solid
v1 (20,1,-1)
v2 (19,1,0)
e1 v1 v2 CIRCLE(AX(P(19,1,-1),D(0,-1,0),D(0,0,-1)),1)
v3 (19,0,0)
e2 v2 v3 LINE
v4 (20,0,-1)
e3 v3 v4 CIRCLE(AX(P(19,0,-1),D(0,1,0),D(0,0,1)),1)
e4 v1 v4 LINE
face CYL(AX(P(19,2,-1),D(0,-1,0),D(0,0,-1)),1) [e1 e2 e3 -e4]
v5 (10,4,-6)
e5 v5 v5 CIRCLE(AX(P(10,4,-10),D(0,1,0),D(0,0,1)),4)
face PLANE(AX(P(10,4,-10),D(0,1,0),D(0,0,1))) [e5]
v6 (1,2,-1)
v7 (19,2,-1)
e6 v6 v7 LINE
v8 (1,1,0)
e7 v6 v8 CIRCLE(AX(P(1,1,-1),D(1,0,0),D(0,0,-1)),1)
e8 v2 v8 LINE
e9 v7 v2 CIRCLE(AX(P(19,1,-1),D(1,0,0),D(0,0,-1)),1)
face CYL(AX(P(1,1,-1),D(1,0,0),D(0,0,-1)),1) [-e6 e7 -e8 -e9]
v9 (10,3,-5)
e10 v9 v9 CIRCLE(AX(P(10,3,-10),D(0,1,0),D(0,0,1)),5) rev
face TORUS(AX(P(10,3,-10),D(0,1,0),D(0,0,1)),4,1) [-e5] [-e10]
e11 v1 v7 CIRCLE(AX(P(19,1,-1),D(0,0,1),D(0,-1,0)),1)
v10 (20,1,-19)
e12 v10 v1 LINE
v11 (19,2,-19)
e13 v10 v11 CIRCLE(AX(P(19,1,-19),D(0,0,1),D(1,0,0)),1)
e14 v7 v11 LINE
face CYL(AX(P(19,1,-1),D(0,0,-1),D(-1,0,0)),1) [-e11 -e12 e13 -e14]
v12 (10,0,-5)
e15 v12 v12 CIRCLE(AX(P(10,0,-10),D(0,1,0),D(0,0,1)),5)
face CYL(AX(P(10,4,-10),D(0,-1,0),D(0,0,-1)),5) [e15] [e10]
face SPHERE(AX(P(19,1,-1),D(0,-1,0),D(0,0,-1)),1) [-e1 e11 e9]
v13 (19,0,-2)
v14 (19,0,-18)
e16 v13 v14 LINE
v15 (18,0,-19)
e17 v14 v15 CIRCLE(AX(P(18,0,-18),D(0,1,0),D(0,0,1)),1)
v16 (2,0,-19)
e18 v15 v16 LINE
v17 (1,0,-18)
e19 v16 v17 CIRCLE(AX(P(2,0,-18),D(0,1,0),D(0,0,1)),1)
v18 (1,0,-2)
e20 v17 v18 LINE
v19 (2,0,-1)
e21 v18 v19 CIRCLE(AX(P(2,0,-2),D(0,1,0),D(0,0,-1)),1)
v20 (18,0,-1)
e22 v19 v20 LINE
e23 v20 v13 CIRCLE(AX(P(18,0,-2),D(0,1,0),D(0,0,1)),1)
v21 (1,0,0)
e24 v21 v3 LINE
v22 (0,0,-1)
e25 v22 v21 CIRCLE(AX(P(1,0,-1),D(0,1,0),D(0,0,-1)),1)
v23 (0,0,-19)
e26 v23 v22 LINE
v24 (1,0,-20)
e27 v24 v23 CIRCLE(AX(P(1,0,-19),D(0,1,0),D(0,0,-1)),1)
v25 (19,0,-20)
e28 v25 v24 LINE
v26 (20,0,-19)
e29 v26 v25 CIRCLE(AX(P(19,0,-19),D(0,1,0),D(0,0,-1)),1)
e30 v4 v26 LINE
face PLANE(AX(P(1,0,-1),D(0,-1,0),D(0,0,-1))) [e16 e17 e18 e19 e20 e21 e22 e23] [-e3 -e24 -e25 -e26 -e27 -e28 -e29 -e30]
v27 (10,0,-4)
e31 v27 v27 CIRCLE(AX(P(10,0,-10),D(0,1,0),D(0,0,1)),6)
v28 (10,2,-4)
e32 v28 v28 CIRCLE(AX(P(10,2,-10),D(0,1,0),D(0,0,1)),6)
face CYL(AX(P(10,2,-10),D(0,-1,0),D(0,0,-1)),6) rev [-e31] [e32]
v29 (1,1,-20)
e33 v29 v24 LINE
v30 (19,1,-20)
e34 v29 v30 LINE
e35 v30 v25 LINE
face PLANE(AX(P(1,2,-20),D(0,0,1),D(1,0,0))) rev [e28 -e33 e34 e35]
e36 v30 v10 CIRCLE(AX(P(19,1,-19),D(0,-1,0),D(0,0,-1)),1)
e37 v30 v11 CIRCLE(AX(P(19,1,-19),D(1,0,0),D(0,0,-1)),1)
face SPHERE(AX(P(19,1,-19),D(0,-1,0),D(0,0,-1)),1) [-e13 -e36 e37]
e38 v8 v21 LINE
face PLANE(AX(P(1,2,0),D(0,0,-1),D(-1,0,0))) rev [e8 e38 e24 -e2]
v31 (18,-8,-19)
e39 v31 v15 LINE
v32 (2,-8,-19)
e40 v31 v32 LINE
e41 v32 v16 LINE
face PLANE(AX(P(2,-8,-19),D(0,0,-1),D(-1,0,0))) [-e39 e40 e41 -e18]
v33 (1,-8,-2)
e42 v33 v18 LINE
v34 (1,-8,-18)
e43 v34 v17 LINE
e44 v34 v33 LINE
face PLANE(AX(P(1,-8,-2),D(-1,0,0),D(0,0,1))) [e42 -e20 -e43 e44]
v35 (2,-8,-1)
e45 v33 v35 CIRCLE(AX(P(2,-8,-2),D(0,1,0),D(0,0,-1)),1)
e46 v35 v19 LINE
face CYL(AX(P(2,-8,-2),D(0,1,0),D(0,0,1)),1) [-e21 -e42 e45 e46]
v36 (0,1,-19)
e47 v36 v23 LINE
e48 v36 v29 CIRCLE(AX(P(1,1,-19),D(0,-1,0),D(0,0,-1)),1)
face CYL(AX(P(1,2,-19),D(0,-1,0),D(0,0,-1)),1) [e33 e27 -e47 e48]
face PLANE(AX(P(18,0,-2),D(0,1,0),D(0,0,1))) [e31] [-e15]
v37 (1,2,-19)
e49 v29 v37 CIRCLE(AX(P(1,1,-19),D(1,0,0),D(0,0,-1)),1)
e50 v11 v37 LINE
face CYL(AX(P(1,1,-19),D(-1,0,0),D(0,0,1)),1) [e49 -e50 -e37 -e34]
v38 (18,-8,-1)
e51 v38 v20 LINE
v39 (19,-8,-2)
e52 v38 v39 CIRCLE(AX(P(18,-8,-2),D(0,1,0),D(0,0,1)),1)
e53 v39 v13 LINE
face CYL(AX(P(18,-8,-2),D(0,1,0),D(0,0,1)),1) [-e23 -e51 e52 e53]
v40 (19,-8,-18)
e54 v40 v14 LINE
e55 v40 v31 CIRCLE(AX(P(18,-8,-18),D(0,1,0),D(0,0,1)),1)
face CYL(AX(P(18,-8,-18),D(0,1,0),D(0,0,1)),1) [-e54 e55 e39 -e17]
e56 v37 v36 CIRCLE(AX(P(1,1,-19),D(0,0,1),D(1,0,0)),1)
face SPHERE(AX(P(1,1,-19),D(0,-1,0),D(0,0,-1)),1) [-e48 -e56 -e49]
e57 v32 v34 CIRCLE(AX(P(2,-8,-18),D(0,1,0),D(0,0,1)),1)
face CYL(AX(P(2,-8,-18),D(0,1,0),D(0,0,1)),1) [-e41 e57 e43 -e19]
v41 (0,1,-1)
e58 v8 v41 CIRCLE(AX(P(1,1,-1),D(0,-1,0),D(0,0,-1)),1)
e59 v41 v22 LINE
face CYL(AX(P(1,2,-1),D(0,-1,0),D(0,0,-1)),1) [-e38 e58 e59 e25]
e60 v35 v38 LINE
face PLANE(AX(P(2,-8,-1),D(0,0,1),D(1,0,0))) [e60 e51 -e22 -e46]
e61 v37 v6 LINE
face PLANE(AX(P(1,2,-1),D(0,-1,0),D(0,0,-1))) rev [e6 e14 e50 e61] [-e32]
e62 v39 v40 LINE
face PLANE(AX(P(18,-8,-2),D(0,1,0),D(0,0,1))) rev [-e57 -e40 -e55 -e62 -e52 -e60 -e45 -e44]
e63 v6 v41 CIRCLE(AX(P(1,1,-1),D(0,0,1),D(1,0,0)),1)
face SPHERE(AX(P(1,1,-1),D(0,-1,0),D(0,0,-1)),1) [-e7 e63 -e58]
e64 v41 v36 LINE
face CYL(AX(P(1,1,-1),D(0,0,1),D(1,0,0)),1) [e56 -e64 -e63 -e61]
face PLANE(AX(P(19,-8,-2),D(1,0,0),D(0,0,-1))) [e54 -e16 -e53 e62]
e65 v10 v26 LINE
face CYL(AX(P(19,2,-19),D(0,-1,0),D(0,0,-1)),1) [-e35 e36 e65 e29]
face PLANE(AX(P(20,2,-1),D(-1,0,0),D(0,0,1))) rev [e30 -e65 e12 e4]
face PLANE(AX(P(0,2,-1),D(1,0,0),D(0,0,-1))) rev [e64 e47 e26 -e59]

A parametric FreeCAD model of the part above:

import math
import FreeCAD as App
import Part
import Sketcher

V = App.Vector
Q = App.Units.Quantity


def edges_at(feature, points):
    """Names of the edges that pass closest to the given points."""
    edges = feature.Shape.Edges
    near = lambda p: min(range(len(edges)), key=lambda i: edges[i].distToShape(Part.Vertex(*p))[0])
    return sorted({f"Edge{near(p) + 1}" for p in points})

doc = App.newDocument("Part")
body = doc.addObject("PartDesign::Body", "Body")

# Sketch on XZ plane
sketch1 = doc.addObject("Sketcher::SketchObject", "Sketch")
body.addObject(sketch1)
sketch1.AttachmentSupport = (doc.XZ_Plane, [""])
sketch1.MapMode = "FlatFace"
sketch1.addGeometry(Part.LineSegment(V(1, 0, 0), V(19, 0, 0)), False)
sketch1.addGeometry(Part.ArcOfCircle(Part.Circle(V(19, -1, 0), V(0, 0, 1), 1), math.radians(0), math.radians(90)), False)
sketch1.addGeometry(Part.LineSegment(V(20, -1, 0), V(20, -19, 0)), False)
sketch1.addGeometry(Part.ArcOfCircle(Part.Circle(V(19, -19, 0), V(0, 0, 1), 1), math.radians(-90), math.radians(0)), False)
sketch1.addGeometry(Part.LineSegment(V(19, -20, 0), V(1, -20, 0)), False)
sketch1.addGeometry(Part.ArcOfCircle(Part.Circle(V(1, -19, 0), V(0, 0, 1), 1), math.radians(-180), math.radians(-90)), False)
sketch1.addGeometry(Part.LineSegment(V(0, -19, 0), V(0, -1, 0)), False)
sketch1.addGeometry(Part.ArcOfCircle(Part.Circle(V(1, -1, 0), V(0, 0, 1), 1), math.radians(90), math.radians(180)), False)
sketch1.addGeometry(Part.Circle(V(10, -10, 0), V(0, 0, 1), 6), False)
sketch1.addConstraint(Sketcher.Constraint("Tangent", 0, 2, 1, 2))
sketch1.addConstraint(Sketcher.Constraint("Tangent", 1, 1, 2, 1))
sketch1.addConstraint(Sketcher.Constraint("Tangent", 2, 2, 3, 2))
sketch1.addConstraint(Sketcher.Constraint("Tangent", 3, 1, 4, 1))
sketch1.addConstraint(Sketcher.Constraint("Tangent", 4, 2, 5, 2))
sketch1.addConstraint(Sketcher.Constraint("Tangent", 5, 1, 6, 1))
sketch1.addConstraint(Sketcher.Constraint("Tangent", 6, 2, 7, 2))
sketch1.addConstraint(Sketcher.Constraint("Tangent", 7, 1, 0, 1))
sketch1.addConstraint(Sketcher.Constraint("Horizontal", 0))
sketch1.addConstraint(Sketcher.Constraint("Vertical", 2))
sketch1.addConstraint(Sketcher.Constraint("Horizontal", 4))
sketch1.addConstraint(Sketcher.Constraint("Vertical", 6))
sketch1.addConstraint(Sketcher.Constraint("Equal", 1, 3))
sketch1.addConstraint(Sketcher.Constraint("Equal", 3, 5))
sketch1.addConstraint(Sketcher.Constraint("Equal", 5, 7))
sketch1.addConstraint(Sketcher.Constraint("PointOnObject", 0, 2, -1))
sketch1.addConstraint(Sketcher.Constraint("PointOnObject", 5, 1, -2))
sketch1.addConstraint(Sketcher.Constraint("Equal", 4, 2))
sketch1.addConstraint(Sketcher.Constraint("Diameter", 8, Q("12 mm")))
sketch1.addConstraint(Sketcher.Constraint("Radius", 1, Q("1 mm")))
sketch1.addConstraint(Sketcher.Constraint("DistanceX", 0, 1, 0, 2, Q("18 mm")))
sketch1.addConstraint(Sketcher.Constraint("DistanceX", -1, 1, 8, 3, Q("10 mm")))
sketch1.addConstraint(Sketcher.Constraint("DistanceY", 8, 3, -1, 1, Q("10 mm")))
pad1 = doc.addObject("PartDesign::Pad", "Pad")
body.addObject(pad1)
pad1.Profile = sketch1
pad1.Length = 2
pad1.Reversed = True

# Sketch on XZ plane
sketch2 = doc.addObject("Sketcher::SketchObject", "Sketch001")
body.addObject(sketch2)
sketch2.AttachmentSupport = (doc.XZ_Plane, [""])
sketch2.MapMode = "FlatFace"
sketch2.addGeometry(Part.LineSegment(V(2, -1, 0), V(18, -1, 0)), False)
sketch2.addGeometry(Part.ArcOfCircle(Part.Circle(V(18, -2, 0), V(0, 0, 1), 1), math.radians(0), math.radians(90)), False)
sketch2.addGeometry(Part.LineSegment(V(19, -2, 0), V(19, -18, 0)), False)
sketch2.addGeometry(Part.ArcOfCircle(Part.Circle(V(18, -18, 0), V(0, 0, 1), 1), math.radians(-90), math.radians(0)), False)
sketch2.addGeometry(Part.LineSegment(V(18, -19, 0), V(2, -19, 0)), False)
sketch2.addGeometry(Part.ArcOfCircle(Part.Circle(V(2, -18, 0), V(0, 0, 1), 1), math.radians(-180), math.radians(-90)), False)
sketch2.addGeometry(Part.LineSegment(V(1, -18, 0), V(1, -2, 0)), False)
sketch2.addGeometry(Part.ArcOfCircle(Part.Circle(V(2, -2, 0), V(0, 0, 1), 1), math.radians(90), math.radians(180)), False)
sketch2.addConstraint(Sketcher.Constraint("Tangent", 0, 2, 1, 2))
sketch2.addConstraint(Sketcher.Constraint("Tangent", 1, 1, 2, 1))
sketch2.addConstraint(Sketcher.Constraint("Tangent", 2, 2, 3, 2))
sketch2.addConstraint(Sketcher.Constraint("Tangent", 3, 1, 4, 1))
sketch2.addConstraint(Sketcher.Constraint("Tangent", 4, 2, 5, 2))
sketch2.addConstraint(Sketcher.Constraint("Tangent", 5, 1, 6, 1))
sketch2.addConstraint(Sketcher.Constraint("Tangent", 6, 2, 7, 2))
sketch2.addConstraint(Sketcher.Constraint("Tangent", 7, 1, 0, 1))
sketch2.addConstraint(Sketcher.Constraint("Horizontal", 0))
sketch2.addConstraint(Sketcher.Constraint("Vertical", 2))
sketch2.addConstraint(Sketcher.Constraint("Horizontal", 4))
sketch2.addConstraint(Sketcher.Constraint("Vertical", 6))
sketch2.addConstraint(Sketcher.Constraint("Equal", 1, 3))
sketch2.addConstraint(Sketcher.Constraint("Equal", 3, 5))
sketch2.addConstraint(Sketcher.Constraint("Equal", 5, 7))
sketch2.addConstraint(Sketcher.Constraint("Equal", 4, 2))
sketch2.addConstraint(Sketcher.Constraint("Radius", 1, Q("1 mm")))
sketch2.addConstraint(Sketcher.Constraint("DistanceX", 0, 1, 0, 2, Q("16 mm")))
sketch2.addConstraint(Sketcher.Constraint("DistanceX", -1, 1, 1, 3, Q("18 mm")))
sketch2.addConstraint(Sketcher.Constraint("DistanceY", 1, 3, -1, 1, Q("2 mm")))
pad2 = doc.addObject("PartDesign::Pad", "Pad001")
body.addObject(pad2)
pad2.Profile = sketch2
pad2.Length = 8

# Sketch on XZ plane
sketch3 = doc.addObject("Sketcher::SketchObject", "Sketch002")
body.addObject(sketch3)
sketch3.AttachmentSupport = (doc.XZ_Plane, [""])
sketch3.MapMode = "FlatFace"
sketch3.addGeometry(Part.Circle(V(10, -10, 0), V(0, 0, 1), 5), False)
sketch3.addConstraint(Sketcher.Constraint("Diameter", 0, Q("10 mm")))
sketch3.addConstraint(Sketcher.Constraint("DistanceX", -1, 1, 0, 3, Q("10 mm")))
sketch3.addConstraint(Sketcher.Constraint("DistanceY", 0, 3, -1, 1, Q("10 mm")))
pad3 = doc.addObject("PartDesign::Pad", "Pad002")
body.addObject(pad3)
pad3.Profile = sketch3
pad3.Length = 4
pad3.Reversed = True
doc.recompute()

fillet = doc.addObject("PartDesign::Fillet", "Fillet")
body.addObject(fillet)
fillet.Base = (pad3, edges_at(pad3, [
    (19.707, 2, -0.293),
    (20, 2, -10),
    (19.707, 2, -19.707),
    (10, 2, -20),
    (0.293, 2, -19.707),
    (0, 2, -10),
    (0.293, 2, -0.293),
    (10, 4, -15),
    (10, 2, 0),
]))
fillet.Radius = 1

doc.recompute()
